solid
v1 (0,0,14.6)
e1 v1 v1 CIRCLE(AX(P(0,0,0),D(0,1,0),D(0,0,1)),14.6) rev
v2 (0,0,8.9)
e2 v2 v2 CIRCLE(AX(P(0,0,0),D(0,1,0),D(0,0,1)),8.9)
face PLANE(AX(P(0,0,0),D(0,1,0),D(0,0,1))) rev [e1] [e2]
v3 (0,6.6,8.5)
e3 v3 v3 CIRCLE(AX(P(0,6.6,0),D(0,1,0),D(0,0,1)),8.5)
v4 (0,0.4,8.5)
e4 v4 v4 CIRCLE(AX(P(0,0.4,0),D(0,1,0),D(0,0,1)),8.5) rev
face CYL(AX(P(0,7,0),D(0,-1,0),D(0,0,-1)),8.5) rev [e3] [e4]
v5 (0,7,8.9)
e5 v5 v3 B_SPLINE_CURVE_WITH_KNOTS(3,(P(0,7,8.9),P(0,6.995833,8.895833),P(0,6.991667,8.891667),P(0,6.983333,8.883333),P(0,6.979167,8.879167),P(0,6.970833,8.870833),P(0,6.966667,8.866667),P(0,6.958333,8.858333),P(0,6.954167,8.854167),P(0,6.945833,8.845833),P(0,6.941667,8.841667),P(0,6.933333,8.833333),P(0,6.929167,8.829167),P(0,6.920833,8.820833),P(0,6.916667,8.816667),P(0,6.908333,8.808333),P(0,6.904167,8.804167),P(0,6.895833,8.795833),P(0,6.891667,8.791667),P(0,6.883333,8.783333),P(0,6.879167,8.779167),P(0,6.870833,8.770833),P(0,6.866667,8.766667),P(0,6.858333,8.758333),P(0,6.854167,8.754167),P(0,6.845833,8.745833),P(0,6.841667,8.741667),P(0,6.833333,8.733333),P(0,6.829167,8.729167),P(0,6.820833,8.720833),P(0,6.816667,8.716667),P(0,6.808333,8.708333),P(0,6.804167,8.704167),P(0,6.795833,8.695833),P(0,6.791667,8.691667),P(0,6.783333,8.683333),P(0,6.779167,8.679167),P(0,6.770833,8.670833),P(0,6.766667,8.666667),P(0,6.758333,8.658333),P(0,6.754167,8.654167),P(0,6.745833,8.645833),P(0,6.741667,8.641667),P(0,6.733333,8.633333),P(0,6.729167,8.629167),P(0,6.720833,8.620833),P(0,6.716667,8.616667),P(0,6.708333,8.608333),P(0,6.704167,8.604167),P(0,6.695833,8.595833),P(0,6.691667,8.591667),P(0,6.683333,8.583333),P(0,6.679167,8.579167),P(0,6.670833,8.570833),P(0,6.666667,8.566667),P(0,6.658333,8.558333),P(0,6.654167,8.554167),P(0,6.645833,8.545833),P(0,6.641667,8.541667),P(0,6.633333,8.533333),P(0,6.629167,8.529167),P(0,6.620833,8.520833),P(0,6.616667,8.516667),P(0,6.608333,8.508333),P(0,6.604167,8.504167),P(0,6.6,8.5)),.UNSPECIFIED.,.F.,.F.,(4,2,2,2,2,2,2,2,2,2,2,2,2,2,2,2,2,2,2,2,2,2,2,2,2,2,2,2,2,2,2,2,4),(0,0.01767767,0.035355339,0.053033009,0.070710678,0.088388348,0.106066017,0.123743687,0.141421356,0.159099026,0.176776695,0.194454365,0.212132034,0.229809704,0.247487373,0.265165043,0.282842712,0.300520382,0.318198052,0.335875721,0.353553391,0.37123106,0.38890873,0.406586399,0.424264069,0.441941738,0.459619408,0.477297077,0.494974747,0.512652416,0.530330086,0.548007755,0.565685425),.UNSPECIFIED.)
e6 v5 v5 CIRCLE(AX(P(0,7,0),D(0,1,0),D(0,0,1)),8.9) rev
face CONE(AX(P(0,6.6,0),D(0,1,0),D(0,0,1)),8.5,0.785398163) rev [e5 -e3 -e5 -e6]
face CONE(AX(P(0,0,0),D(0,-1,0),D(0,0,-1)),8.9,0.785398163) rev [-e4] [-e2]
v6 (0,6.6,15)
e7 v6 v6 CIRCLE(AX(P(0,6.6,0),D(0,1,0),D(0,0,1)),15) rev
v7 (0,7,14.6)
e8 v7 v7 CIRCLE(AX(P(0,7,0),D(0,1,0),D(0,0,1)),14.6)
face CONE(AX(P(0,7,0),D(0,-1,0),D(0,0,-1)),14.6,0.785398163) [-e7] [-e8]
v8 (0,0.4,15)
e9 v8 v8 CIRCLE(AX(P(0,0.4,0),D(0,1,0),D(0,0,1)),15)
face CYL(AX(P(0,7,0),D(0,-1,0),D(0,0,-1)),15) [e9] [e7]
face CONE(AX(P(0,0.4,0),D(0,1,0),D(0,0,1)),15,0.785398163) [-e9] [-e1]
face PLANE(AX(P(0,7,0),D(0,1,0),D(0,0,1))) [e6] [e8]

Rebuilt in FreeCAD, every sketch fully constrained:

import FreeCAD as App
import Part
import Sketcher


def edges_at(feature, points):
    """Names of the edges that pass closest to the given points."""
    edges = feature.Shape.Edges
    near = lambda p: min(range(len(edges)), key=lambda i: edges[i].distToShape(Part.Vertex(*p))[0])
    return sorted({f"Edge{near(p) + 1}" for p in points})

doc = App.newDocument("Part")
params = doc.addObject("Spreadsheet::Sheet", "Params")
for row, (alias, value) in enumerate([
    ("sketch1_diameter", "30 mm"),
    ("sketch1_diameter2", "17 mm"),
    ("pad1_length", "7 mm"),
    ("chamfer_size", "0.4 mm"),
], start=1):
    params.set(f"A{row}", alias)
    params.set(f"B{row}", "=" + value)
    params.setAlias(f"B{row}", alias)

body = doc.addObject("PartDesign::Body", "Body")

# Sketch on XZ plane
sketch1 = doc.addObject("Sketcher::SketchObject", "Sketch")
body.addObject(sketch1)
sketch1.AttachmentSupport = (doc.XZ_Plane, [""])
sketch1.MapMode = "FlatFace"
sketch1.addGeometry([
    Part.Circle(App.Vector(0, 0, 0), App.Vector(0, 0, 1), 15),
    Part.Circle(App.Vector(0, 0, 0), App.Vector(0, 0, 1), 8),
], False)
sketch1.addConstraint([
    Sketcher.Constraint("Coincident", 0, 3, -1, 1),
    Sketcher.Constraint("Coincident", 1, 3, -1, 1),
    Sketcher.Constraint("Diameter", 0, 30.0),
    Sketcher.Constraint("Diameter", 1, 17.0),
])
sketch1.setExpression("Constraints[2]", "Params.sketch1_diameter")
sketch1.setExpression("Constraints[3]", "Params.sketch1_diameter2")
pad1 = doc.addObject("PartDesign::Pad", "Pad")
body.addObject(pad1)
pad1.Profile = sketch1
pad1.setExpression("Length", "Params.pad1_length")
pad1.Reversed = True
doc.recompute()

chamfer = doc.addObject("PartDesign::Chamfer", "Chamfer")
body.addObject(chamfer)
chamfer.Base = (pad1, edges_at(pad1, [
    (0, 0, -15),
    (0, 7, -15),
    (0, 0, -8.5),
    (0, 7, -8.5),
]))
chamfer.setExpression("Size", "Params.chamfer_size")

doc.recompute()
